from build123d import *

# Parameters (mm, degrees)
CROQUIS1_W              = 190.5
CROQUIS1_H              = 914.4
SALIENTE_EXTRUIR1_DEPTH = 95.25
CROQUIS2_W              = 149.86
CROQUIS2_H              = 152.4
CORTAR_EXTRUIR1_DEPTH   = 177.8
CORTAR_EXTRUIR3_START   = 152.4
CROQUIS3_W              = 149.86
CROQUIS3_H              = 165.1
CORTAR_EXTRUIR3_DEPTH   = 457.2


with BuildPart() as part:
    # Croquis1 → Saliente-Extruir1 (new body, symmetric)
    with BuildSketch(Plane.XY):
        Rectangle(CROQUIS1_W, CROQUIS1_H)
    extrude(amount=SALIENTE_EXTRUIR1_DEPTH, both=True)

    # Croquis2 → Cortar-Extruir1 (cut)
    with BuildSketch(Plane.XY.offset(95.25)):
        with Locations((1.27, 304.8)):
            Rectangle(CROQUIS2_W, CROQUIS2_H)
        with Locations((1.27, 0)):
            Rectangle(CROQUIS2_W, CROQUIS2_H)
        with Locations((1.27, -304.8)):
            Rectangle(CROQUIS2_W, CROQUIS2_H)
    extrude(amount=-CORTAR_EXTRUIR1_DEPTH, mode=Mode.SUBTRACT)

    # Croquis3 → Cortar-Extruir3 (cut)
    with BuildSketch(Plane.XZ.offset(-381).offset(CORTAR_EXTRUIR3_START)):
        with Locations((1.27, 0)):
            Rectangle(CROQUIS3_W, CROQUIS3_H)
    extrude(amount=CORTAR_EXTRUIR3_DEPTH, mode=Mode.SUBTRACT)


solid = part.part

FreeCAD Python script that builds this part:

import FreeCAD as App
import Part
import Sketcher

V = App.Vector
Q = App.Units.Quantity

doc = App.newDocument("Part")
body = doc.addObject("PartDesign::Body", "Body")

# Sketch on XY plane
sketch1 = body.newObject("Sketcher::SketchObject", "Sketch")
sketch1.AttachmentSupport = (doc.getObject("XY_Plane"), [""])
sketch1.MapMode = "FlatFace"
sketch1.addGeometry(Part.LineSegment(V(-95, 457, 0), V(-95, -457, 0)), False)
sketch1.addGeometry(Part.LineSegment(V(-95, -457, 0), V(95, -457, 0)), False)
sketch1.addGeometry(Part.LineSegment(V(95, -457, 0), V(95, 457, 0)), False)
sketch1.addGeometry(Part.LineSegment(V(95, 457, 0), V(-95, 457, 0)), False)
sketch1.addConstraint(Sketcher.Constraint("Coincident", 0, 2, 1, 1))
sketch1.addConstraint(Sketcher.Constraint("Coincident", 1, 2, 2, 1))
sketch1.addConstraint(Sketcher.Constraint("Coincident", 2, 2, 3, 1))
sketch1.addConstraint(Sketcher.Constraint("Coincident", 3, 2, 0, 1))
sketch1.addConstraint(Sketcher.Constraint("Vertical", 0))
sketch1.addConstraint(Sketcher.Constraint("Horizontal", 1))
sketch1.addConstraint(Sketcher.Constraint("Vertical", 2))
sketch1.addConstraint(Sketcher.Constraint("Horizontal", 3))
sketch1.addConstraint(Sketcher.Constraint("Symmetric", 0, 2, 2, 2, -1, 1))
sketch1.addConstraint(Sketcher.Constraint("DistanceY", 0, 2, 0, 1, Q("36 in")))
sketch1.addConstraint(Sketcher.Constraint("DistanceX", 1, 1, 1, 2, Q("7.5 in")))
pad1 = body.newObject("PartDesign::Pad", "Pad")
pad1.Profile = sketch1
pad1.Length = Q("7.5 in")
pad1.Midplane = True

# Sketch on XY plane
sketch2 = body.newObject("Sketcher::SketchObject", "Sketch001")
sketch2.AttachmentSupport = (doc.getObject("XY_Plane"), [""])
sketch2.MapMode = "FlatFace"
sketch2.AttachmentOffset = App.Placement(V(0, 0, 3.75 * 25.4), App.Rotation())
sketch2.addGeometry(Part.LineSegment(V(-74, 381, 0), V(-74, 229, 0)), False)
sketch2.addGeometry(Part.LineSegment(V(-74, 229, 0), V(76, 229, 0)), False)
sketch2.addGeometry(Part.LineSegment(V(76, 229, 0), V(76, 381, 0)), False)
sketch2.addGeometry(Part.LineSegment(V(76, 381, 0), V(-74, 381, 0)), False)
sketch2.addGeometry(Part.LineSegment(V(-74, 76, 0), V(-74, -76, 0)), False)
sketch2.addGeometry(Part.LineSegment(V(-74, -76, 0), V(76, -76, 0)), False)
sketch2.addGeometry(Part.LineSegment(V(76, -76, 0), V(76, 76, 0)), False)
sketch2.addGeometry(Part.LineSegment(V(76, 76, 0), V(-74, 76, 0)), False)
sketch2.addGeometry(Part.LineSegment(V(-74, -229, 0), V(-74, -381, 0)), False)
sketch2.addGeometry(Part.LineSegment(V(-74, -381, 0), V(76, -381, 0)), False)
sketch2.addGeometry(Part.LineSegment(V(76, -381, 0), V(76, -229, 0)), False)
sketch2.addGeometry(Part.LineSegment(V(76, -229, 0), V(-74, -229, 0)), False)
sketch2.addConstraint(Sketcher.Constraint("Coincident", 0, 2, 1, 1))
sketch2.addConstraint(Sketcher.Constraint("Coincident", 1, 2, 2, 1))
sketch2.addConstraint(Sketcher.Constraint("Coincident", 2, 2, 3, 1))
sketch2.addConstraint(Sketcher.Constraint("Coincident", 3, 2, 0, 1))
sketch2.addConstraint(Sketcher.Constraint("Coincident", 4, 2, 5, 1))
sketch2.addConstraint(Sketcher.Constraint("Coincident", 5, 2, 6, 1))
sketch2.addConstraint(Sketcher.Constraint("Coincident", 6, 2, 7, 1))
sketch2.addConstraint(Sketcher.Constraint("Coincident", 7, 2, 4, 1))
sketch2.addConstraint(Sketcher.Constraint("Coincident", 8, 2, 9, 1))
sketch2.addConstraint(Sketcher.Constraint("Coincident", 9, 2, 10, 1))
sketch2.addConstraint(Sketcher.Constraint("Coincident", 10, 2, 11, 1))
sketch2.addConstraint(Sketcher.Constraint("Coincident", 11, 2, 8, 1))
sketch2.addConstraint(Sketcher.Constraint("Vertical", 0))
sketch2.addConstraint(Sketcher.Constraint("Horizontal", 1))
sketch2.addConstraint(Sketcher.Constraint("Vertical", 2))
sketch2.addConstraint(Sketcher.Constraint("Horizontal", 3))
sketch2.addConstraint(Sketcher.Constraint("Vertical", 4))
sketch2.addConstraint(Sketcher.Constraint("Horizontal", 5))
sketch2.addConstraint(Sketcher.Constraint("Vertical", 6))
sketch2.addConstraint(Sketcher.Constraint("Horizontal", 7))
sketch2.addConstraint(Sketcher.Constraint("Vertical", 8))
sketch2.addConstraint(Sketcher.Constraint("Horizontal", 9))
sketch2.addConstraint(Sketcher.Constraint("Vertical", 10))
sketch2.addConstraint(Sketcher.Constraint("Horizontal", 11))
sketch2.addConstraint(Sketcher.Constraint("Symmetric", 3, 2, 8, 2, -1))
sketch2.addConstraint(Sketcher.Constraint("Symmetric", 1, 2, 10, 2, -1))
sketch2.addConstraint(Sketcher.Constraint("Vertical", 3, 2, 4, 2))
sketch2.addConstraint(Sketcher.Constraint("Vertical", 2, 2, 5, 2))
sketch2.addConstraint(Sketcher.Constraint("Equal", 2, 4))
sketch2.addConstraint(Sketcher.Constraint("DistanceY", 0, 2, 0, 1, Q("6 in")))
sketch2.addConstraint(Sketcher.Constraint("DistanceX", 1, 1, 1, 2, Q("5.9 in")))
sketch2.addConstraint(Sketcher.Constraint("DistanceY", -1, 1, 0, 2, Q("9 in")))
sketch2.addConstraint(Sketcher.Constraint("DistanceX", -1, 1, 1, 2, Q("3 in")))
sketch2.addConstraint(Sketcher.Constraint("DistanceY", 4, 2, -1, 1, Q("3 in")))
pocket1 = body.newObject("PartDesign::Pocket", "Pocket")
pocket1.Profile = sketch2
pocket1.Length = Q("7 in")

# Sketch on XZ plane
sketch3 = body.newObject("Sketcher::SketchObject", "Sketch002")
sketch3.AttachmentSupport = (doc.getObject("XZ_Plane"), [""])
sketch3.MapMode = "FlatFace"
sketch3.AttachmentOffset = App.Placement(V(0, 0, -9 * 25.4), App.Rotation())
sketch3.addGeometry(Part.LineSegment(V(-74, 83, 0), V(-74, -83, 0)), False)
sketch3.addGeometry(Part.LineSegment(V(-74, -83, 0), V(76, -83, 0)), False)
sketch3.addGeometry(Part.LineSegment(V(76, -83, 0), V(76, 83, 0)), False)
sketch3.addGeometry(Part.LineSegment(V(76, 83, 0), V(-74, 83, 0)), False)
sketch3.addConstraint(Sketcher.Constraint("Coincident", 0, 2, 1, 1))
sketch3.addConstraint(Sketcher.Constraint("Coincident", 1, 2, 2, 1))
sketch3.addConstraint(Sketcher.Constraint("Coincident", 2, 2, 3, 1))
sketch3.addConstraint(Sketcher.Constraint("Coincident", 3, 2, 0, 1))
sketch3.addConstraint(Sketcher.Constraint("Vertical", 0))
sketch3.addConstraint(Sketcher.Constraint("Horizontal", 1))
sketch3.addConstraint(Sketcher.Constraint("Vertical", 2))
sketch3.addConstraint(Sketcher.Constraint("Horizontal", 3))
sketch3.addConstraint(Sketcher.Constraint("DistanceX", 1, 1, 1, 2, Q("5.9 in")))
sketch3.addConstraint(Sketcher.Constraint("DistanceY", 0, 2, 0, 1, Q("6.5 in")))
sketch3.addConstraint(Sketcher.Constraint("DistanceX", -1, 1, 1, 2, Q("3 in")))
sketch3.addConstraint(Sketcher.Constraint("DistanceY", 0, 2, -1, 1, Q("3.25 in")))
pocket2 = body.newObject("PartDesign::Pocket", "Pocket001")
pocket2.Profile = sketch3
pocket2.Length = Q("18 in")
pocket2.Reversed = True

doc.recompute()
